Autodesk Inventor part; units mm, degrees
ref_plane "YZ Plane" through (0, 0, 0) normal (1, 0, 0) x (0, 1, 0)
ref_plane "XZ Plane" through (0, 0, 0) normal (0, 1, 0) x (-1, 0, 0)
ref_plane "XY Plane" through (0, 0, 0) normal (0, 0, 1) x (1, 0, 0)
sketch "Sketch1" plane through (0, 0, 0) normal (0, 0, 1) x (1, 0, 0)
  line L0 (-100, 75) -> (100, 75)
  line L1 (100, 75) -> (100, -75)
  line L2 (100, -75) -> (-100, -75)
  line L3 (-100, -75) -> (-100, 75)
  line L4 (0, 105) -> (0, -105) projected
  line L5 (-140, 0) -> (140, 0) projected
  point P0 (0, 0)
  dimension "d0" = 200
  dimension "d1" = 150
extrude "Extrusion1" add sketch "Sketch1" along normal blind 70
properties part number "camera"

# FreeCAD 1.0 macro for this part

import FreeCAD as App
import Part
import Sketcher

doc = App.newDocument("Part")
body = doc.addObject("PartDesign::Body", "Body")

# Sketch on XY plane
sketch1 = body.newObject("Sketcher::SketchObject", "Sketch")
sketch1.AttachmentSupport = (doc.getObject("XY_Plane"), [""])
sketch1.MapMode = "FlatFace"
sketch1.addGeometry(Part.LineSegment(App.Vector(-100, 75, 0), App.Vector(-100, -75, 0)), False)
sketch1.addGeometry(Part.LineSegment(App.Vector(-100, -75, 0), App.Vector(100, -75, 0)), False)
sketch1.addGeometry(Part.LineSegment(App.Vector(100, -75, 0), App.Vector(100, 75, 0)), False)
sketch1.addGeometry(Part.LineSegment(App.Vector(100, 75, 0), App.Vector(-100, 75, 0)), False)
sketch1.addConstraint(Sketcher.Constraint("Coincident", 0, 2, 1, 1))
sketch1.addConstraint(Sketcher.Constraint("Coincident", 1, 2, 2, 1))
sketch1.addConstraint(Sketcher.Constraint("Coincident", 2, 2, 3, 1))
sketch1.addConstraint(Sketcher.Constraint("Coincident", 3, 2, 0, 1))
sketch1.addConstraint(Sketcher.Constraint("Vertical", 0))
sketch1.addConstraint(Sketcher.Constraint("Horizontal", 1))
sketch1.addConstraint(Sketcher.Constraint("Vertical", 2))
sketch1.addConstraint(Sketcher.Constraint("Horizontal", 3))
sketch1.addConstraint(Sketcher.Constraint("Symmetric", 0, 2, 2, 2, -1, 1))
sketch1.addConstraint(Sketcher.Constraint("DistanceX", 1, 1, 1, 2, 200.0))
sketch1.addConstraint(Sketcher.Constraint("DistanceY", 0, 2, 0, 1, 150.0))
pad1 = body.newObject("PartDesign::Pad", "Pad")
pad1.Profile = sketch1
pad1.Length = 70

doc.recompute()
